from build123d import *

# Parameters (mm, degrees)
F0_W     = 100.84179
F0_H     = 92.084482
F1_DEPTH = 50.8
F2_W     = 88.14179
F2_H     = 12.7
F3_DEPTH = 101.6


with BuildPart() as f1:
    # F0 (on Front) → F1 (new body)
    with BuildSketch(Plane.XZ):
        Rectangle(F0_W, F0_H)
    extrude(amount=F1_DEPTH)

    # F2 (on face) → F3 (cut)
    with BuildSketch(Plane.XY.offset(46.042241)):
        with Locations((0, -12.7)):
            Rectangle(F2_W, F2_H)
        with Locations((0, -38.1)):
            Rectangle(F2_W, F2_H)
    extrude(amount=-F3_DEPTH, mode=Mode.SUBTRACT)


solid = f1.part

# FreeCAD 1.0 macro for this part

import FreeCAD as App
import Part
import Sketcher

V = App.Vector
Q = App.Units.Quantity

doc = App.newDocument("Part")
body = doc.addObject("PartDesign::Body", "Body")

# Sketch on XZ plane
sketch1 = doc.addObject("Sketcher::SketchObject", "Sketch")
body.addObject(sketch1)
sketch1.AttachmentSupport = (doc.XZ_Plane, [""])
sketch1.MapMode = "FlatFace"
sketch1.addGeometry(Part.LineSegment(V(-50, 46, 0), V(-50, -46, 0)), False)
sketch1.addGeometry(Part.LineSegment(V(-50, -46, 0), V(50, -46, 0)), False)
sketch1.addGeometry(Part.LineSegment(V(50, -46, 0), V(50, 46, 0)), False)
sketch1.addGeometry(Part.LineSegment(V(50, 46, 0), V(-50, 46, 0)), False)
sketch1.addConstraint(Sketcher.Constraint("Coincident", 0, 2, 1, 1))
sketch1.addConstraint(Sketcher.Constraint("Coincident", 1, 2, 2, 1))
sketch1.addConstraint(Sketcher.Constraint("Coincident", 2, 2, 3, 1))
sketch1.addConstraint(Sketcher.Constraint("Coincident", 3, 2, 0, 1))
sketch1.addConstraint(Sketcher.Constraint("Vertical", 0))
sketch1.addConstraint(Sketcher.Constraint("Horizontal", 1))
sketch1.addConstraint(Sketcher.Constraint("Vertical", 2))
sketch1.addConstraint(Sketcher.Constraint("Horizontal", 3))
sketch1.addConstraint(Sketcher.Constraint("Symmetric", 0, 2, 2, 2, -1, 1))
sketch1.addConstraint(Sketcher.Constraint("DistanceX", 1, 1, 1, 2, Q("100.84179 mm")))
sketch1.addConstraint(Sketcher.Constraint("DistanceY", 0, 2, 0, 1, Q("92.084482 mm")))
pad1 = doc.addObject("PartDesign::Pad", "Pad")
body.addObject(pad1)
pad1.Profile = sketch1
pad1.Length = Q("2 in")

# Sketch on XY plane
sketch2 = doc.addObject("Sketcher::SketchObject", "Sketch001")
body.addObject(sketch2)
sketch2.AttachmentSupport = (doc.XY_Plane, [""])
sketch2.MapMode = "FlatFace"
sketch2.AttachmentOffset = App.Placement(V(0, 0, 46.042241), App.Rotation())
sketch2.addGeometry(Part.LineSegment(V(-44, -6, 0), V(-44, -19, 0)), False)
sketch2.addGeometry(Part.LineSegment(V(-44, -19, 0), V(44, -19, 0)), False)
sketch2.addGeometry(Part.LineSegment(V(44, -19, 0), V(44, -6, 0)), False)
sketch2.addGeometry(Part.LineSegment(V(44, -6, 0), V(-44, -6, 0)), False)
sketch2.addGeometry(Part.LineSegment(V(-44, -32, 0), V(-44, -44, 0)), False)
sketch2.addGeometry(Part.LineSegment(V(-44, -44, 0), V(44, -44, 0)), False)
sketch2.addGeometry(Part.LineSegment(V(44, -44, 0), V(44, -32, 0)), False)
sketch2.addGeometry(Part.LineSegment(V(44, -32, 0), V(-44, -32, 0)), False)
sketch2.addConstraint(Sketcher.Constraint("Coincident", 0, 2, 1, 1))
sketch2.addConstraint(Sketcher.Constraint("Coincident", 1, 2, 2, 1))
sketch2.addConstraint(Sketcher.Constraint("Coincident", 2, 2, 3, 1))
sketch2.addConstraint(Sketcher.Constraint("Coincident", 3, 2, 0, 1))
sketch2.addConstraint(Sketcher.Constraint("Coincident", 4, 2, 5, 1))
sketch2.addConstraint(Sketcher.Constraint("Coincident", 5, 2, 6, 1))
sketch2.addConstraint(Sketcher.Constraint("Coincident", 6, 2, 7, 1))
sketch2.addConstraint(Sketcher.Constraint("Coincident", 7, 2, 4, 1))
sketch2.addConstraint(Sketcher.Constraint("Vertical", 0))
sketch2.addConstraint(Sketcher.Constraint("Horizontal", 1))
sketch2.addConstraint(Sketcher.Constraint("Vertical", 2))
sketch2.addConstraint(Sketcher.Constraint("Horizontal", 3))
sketch2.addConstraint(Sketcher.Constraint("Vertical", 4))
sketch2.addConstraint(Sketcher.Constraint("Horizontal", 5))
sketch2.addConstraint(Sketcher.Constraint("Vertical", 6))
sketch2.addConstraint(Sketcher.Constraint("Horizontal", 7))
sketch2.addConstraint(Sketcher.Constraint("Vertical", 3, 2, 4, 2))
sketch2.addConstraint(Sketcher.Constraint("Vertical", 2, 2, 5, 2))
sketch2.addConstraint(Sketcher.Constraint("Equal", 2, 4))
sketch2.addConstraint(Sketcher.Constraint("DistanceY", 0, 2, 0, 1, Q("0.5 in")))
sketch2.addConstraint(Sketcher.Constraint("DistanceY", 4, 2, 0, 2, Q("1 in")))
sketch2.addConstraint(Sketcher.Constraint("DistanceY", 0, 2, -1, 1, Q("0.75 in")))
sketch2.addConstraint(Sketcher.Constraint("DistanceX", 1, 1, 1, 2, Q("88.14179 mm")))
sketch2.addConstraint(Sketcher.Constraint("DistanceX", 0, 2, -1, 1, Q("44.070895 mm")))
pocket1 = doc.addObject("PartDesign::Pocket", "Pocket")
body.addObject(pocket1)
pocket1.Profile = sketch2
pocket1.Length = Q("4 in")

doc.recompute()
